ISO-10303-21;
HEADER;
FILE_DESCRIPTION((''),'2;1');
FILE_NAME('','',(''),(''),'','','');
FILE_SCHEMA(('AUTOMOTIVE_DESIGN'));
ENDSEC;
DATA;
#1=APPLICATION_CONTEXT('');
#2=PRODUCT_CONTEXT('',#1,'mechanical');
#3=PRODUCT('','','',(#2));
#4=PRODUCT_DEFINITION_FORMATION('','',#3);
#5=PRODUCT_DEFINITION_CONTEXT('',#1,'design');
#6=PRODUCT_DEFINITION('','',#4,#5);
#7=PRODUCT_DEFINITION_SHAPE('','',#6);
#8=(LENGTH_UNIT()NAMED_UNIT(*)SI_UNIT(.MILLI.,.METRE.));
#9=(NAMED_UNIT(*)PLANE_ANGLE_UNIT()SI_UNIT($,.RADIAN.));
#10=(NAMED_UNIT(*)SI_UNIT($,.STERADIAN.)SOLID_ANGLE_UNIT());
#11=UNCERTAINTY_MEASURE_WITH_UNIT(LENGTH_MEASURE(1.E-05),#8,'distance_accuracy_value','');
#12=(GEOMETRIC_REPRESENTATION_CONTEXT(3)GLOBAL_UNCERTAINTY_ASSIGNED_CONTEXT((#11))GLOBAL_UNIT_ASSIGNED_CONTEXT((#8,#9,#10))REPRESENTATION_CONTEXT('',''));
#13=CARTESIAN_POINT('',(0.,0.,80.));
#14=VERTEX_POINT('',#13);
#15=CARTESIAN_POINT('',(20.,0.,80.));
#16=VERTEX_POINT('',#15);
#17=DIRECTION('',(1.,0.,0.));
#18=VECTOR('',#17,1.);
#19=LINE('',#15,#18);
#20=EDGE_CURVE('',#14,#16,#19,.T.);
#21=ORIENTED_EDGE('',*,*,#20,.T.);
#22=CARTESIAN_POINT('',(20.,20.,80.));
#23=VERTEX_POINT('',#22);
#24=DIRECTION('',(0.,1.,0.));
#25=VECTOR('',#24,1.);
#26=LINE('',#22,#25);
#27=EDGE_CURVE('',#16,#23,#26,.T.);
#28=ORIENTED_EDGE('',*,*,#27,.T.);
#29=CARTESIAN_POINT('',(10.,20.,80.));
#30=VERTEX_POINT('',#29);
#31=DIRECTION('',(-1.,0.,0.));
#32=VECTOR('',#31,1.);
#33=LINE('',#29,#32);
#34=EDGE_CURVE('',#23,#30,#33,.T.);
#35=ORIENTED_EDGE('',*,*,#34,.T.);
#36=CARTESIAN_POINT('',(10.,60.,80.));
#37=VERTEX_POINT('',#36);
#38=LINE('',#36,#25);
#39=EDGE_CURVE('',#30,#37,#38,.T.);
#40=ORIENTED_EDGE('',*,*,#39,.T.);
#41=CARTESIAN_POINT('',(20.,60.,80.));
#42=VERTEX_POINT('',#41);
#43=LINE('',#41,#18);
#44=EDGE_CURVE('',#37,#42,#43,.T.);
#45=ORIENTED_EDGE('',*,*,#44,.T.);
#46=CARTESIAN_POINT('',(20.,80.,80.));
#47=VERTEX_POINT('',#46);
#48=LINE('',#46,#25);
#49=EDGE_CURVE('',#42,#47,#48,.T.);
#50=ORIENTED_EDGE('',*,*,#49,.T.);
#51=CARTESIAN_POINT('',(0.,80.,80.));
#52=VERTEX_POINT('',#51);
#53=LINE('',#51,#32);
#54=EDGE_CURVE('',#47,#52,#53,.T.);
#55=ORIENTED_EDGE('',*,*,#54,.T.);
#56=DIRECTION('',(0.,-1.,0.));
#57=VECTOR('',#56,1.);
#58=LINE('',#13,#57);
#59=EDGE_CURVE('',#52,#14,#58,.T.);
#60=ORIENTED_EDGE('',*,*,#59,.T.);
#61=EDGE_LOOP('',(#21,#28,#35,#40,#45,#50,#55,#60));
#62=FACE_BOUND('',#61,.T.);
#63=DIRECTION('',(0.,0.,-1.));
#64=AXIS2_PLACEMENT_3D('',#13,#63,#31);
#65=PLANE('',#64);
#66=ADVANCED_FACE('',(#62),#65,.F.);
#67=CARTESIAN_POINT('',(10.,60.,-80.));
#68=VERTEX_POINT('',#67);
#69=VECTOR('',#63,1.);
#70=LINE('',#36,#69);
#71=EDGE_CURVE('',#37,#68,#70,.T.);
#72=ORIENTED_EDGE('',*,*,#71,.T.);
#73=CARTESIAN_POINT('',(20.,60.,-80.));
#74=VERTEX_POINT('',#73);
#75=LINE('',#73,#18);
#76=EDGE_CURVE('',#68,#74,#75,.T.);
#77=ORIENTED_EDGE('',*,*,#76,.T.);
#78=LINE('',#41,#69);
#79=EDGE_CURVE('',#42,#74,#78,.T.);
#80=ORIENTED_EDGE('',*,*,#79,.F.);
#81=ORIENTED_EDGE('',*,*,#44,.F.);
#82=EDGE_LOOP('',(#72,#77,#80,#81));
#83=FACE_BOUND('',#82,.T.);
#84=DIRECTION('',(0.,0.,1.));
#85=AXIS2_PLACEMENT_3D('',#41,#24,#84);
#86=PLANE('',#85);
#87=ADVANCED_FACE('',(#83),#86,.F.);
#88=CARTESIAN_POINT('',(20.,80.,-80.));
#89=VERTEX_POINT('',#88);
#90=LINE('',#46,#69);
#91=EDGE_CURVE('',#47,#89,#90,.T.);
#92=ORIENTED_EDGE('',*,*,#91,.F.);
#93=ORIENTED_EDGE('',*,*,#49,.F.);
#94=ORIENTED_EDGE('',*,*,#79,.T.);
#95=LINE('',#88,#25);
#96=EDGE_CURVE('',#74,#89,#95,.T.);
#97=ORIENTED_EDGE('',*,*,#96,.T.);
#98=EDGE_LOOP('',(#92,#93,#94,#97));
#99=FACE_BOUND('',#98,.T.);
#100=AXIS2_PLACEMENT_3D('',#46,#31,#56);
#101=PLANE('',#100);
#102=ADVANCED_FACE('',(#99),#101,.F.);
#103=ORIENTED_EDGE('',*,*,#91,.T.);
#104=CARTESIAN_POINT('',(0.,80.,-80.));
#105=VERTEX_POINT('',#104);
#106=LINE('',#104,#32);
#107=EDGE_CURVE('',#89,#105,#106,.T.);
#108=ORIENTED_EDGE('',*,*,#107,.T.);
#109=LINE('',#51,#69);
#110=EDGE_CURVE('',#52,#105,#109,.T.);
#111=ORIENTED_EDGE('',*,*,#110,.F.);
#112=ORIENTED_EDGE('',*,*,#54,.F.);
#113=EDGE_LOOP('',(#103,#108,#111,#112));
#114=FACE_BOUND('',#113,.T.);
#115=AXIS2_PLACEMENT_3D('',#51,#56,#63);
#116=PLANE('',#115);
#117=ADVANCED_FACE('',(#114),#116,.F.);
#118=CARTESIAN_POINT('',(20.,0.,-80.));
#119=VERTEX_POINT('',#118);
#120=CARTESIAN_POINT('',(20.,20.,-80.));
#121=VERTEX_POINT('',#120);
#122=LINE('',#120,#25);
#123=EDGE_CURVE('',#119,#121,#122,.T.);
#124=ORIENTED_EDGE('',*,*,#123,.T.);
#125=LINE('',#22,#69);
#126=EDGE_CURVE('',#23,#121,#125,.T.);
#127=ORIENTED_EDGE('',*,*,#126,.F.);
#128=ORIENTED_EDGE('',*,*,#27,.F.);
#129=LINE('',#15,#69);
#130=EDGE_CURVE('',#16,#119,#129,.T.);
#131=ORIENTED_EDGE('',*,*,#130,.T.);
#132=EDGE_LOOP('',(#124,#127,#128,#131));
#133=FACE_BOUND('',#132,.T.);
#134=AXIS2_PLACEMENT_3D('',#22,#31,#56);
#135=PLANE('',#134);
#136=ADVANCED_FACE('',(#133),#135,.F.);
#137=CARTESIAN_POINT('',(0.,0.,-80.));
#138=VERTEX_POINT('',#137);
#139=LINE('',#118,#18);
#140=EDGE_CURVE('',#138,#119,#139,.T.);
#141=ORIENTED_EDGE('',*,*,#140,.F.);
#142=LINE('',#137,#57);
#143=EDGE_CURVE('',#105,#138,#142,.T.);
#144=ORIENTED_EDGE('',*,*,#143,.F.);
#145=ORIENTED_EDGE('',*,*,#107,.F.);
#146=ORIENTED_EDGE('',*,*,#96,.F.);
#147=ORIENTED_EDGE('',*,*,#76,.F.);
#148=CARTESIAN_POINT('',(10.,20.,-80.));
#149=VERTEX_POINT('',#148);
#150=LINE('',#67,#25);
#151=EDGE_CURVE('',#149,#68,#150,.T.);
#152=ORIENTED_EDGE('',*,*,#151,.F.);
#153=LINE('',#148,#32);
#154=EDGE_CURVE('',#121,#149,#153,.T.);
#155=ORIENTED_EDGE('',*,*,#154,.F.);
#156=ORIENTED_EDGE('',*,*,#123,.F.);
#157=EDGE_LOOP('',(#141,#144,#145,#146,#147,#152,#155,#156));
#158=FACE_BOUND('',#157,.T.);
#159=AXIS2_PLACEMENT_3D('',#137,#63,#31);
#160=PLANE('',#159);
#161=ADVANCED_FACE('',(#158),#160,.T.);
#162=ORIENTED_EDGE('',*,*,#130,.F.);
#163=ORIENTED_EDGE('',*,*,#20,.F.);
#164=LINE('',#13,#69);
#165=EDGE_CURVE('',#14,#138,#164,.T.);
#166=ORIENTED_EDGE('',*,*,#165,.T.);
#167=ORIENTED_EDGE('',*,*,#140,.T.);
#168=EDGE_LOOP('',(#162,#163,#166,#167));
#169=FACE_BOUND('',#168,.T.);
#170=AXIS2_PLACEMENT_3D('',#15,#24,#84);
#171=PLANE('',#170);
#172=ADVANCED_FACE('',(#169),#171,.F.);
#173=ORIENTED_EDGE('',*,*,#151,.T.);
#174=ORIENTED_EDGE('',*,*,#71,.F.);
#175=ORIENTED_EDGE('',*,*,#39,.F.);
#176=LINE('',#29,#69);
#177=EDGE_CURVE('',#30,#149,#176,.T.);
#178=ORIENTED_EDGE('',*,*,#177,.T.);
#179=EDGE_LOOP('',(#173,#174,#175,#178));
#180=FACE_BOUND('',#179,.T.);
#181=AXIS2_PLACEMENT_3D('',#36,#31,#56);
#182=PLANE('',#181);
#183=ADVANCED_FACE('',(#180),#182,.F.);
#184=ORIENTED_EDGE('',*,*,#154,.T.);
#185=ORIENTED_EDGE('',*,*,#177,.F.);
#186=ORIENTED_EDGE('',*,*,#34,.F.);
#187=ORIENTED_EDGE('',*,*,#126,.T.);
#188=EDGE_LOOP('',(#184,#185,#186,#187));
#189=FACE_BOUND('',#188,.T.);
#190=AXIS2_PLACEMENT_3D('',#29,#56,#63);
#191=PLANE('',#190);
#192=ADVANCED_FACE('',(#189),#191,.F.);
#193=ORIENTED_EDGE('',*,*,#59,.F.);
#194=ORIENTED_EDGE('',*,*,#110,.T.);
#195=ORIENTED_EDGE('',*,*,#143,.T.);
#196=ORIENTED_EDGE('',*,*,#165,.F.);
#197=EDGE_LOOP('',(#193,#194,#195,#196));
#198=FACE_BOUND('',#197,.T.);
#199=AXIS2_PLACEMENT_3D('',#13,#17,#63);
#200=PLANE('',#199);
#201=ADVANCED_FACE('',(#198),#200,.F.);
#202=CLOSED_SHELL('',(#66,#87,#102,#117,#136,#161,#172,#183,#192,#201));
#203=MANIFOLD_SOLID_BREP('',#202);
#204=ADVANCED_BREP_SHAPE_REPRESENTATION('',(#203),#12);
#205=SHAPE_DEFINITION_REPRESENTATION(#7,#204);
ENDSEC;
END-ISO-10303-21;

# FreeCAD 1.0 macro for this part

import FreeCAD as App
import Part
import Sketcher

V = App.Vector


def add_polygon(sketch, points):
    """Adds a closed chain of lines whose ends are joined by coincident constraints."""
    first, n = sketch.GeometryCount, len(points)
    for a, b in zip(points, points[1:] + points[:1]):
        sketch.addGeometry(Part.LineSegment(App.Vector(*a, 0), App.Vector(*b, 0)), False)
    for i in range(n):
        sketch.addConstraint(Sketcher.Constraint("Coincident", first + i, 2, first + (i + 1) % n, 1))

doc = App.newDocument("Part")
params = doc.addObject("Spreadsheet::Sheet", "Params")
for row, (alias, value) in enumerate([
    ("sketch1_width", "20 mm"),
    ("sketch1_width2", "10 mm"),
    ("sketch1_height", "80 mm"),
    ("pad1_length", "160 mm"),
], start=1):
    params.set(f"A{row}", alias)
    params.set(f"B{row}", "=" + value)
    params.setAlias(f"B{row}", alias)

body = doc.addObject("PartDesign::Body", "Body")

sketch1 = body.newObject("Sketcher::SketchObject", "Sketch")
sketch1.AttachmentSupport = (doc.getObject("XY_Plane"), [""])
sketch1.MapMode = "FlatFace"
add_polygon(sketch1, [(0, 80), (0, 0), (20, 0), (20, 20), (10, 20), (10, 60), (20, 60), (20, 80)])
sketch1.addConstraint([
    Sketcher.Constraint("Vertical", 0),
    Sketcher.Constraint("Horizontal", 1),
    Sketcher.Constraint("Vertical", 2),
    Sketcher.Constraint("Horizontal", 3),
    Sketcher.Constraint("Vertical", 4),
    Sketcher.Constraint("Horizontal", 5),
    Sketcher.Constraint("Vertical", 6),
    Sketcher.Constraint("Horizontal", 7),
    Sketcher.Constraint("Coincident", 0, 2, -1, 1),
    Sketcher.Constraint("Vertical", 2, 2, 5, 2),
    Sketcher.Constraint("Equal", 7, 2),
    Sketcher.Constraint("Equal", 2, 6),
    Sketcher.Constraint("DistanceX", 1, 1, 1, 2, 20.0),
    Sketcher.Constraint("DistanceX", 3, 2, 3, 1, 10.0),
    Sketcher.Constraint("DistanceY", 0, 2, 0, 1, 80.0),
])
sketch1.setExpression("Constraints[20]", "Params.sketch1_width")
sketch1.setExpression("Constraints[21]", "Params.sketch1_width2")
sketch1.setExpression("Constraints[22]", "Params.sketch1_height")
pad1 = body.newObject("PartDesign::Pad", "Pad")
pad1.Profile = sketch1
pad1.setExpression("Length", "Params.pad1_length")
pad1.Midplane = True

doc.recompute()
